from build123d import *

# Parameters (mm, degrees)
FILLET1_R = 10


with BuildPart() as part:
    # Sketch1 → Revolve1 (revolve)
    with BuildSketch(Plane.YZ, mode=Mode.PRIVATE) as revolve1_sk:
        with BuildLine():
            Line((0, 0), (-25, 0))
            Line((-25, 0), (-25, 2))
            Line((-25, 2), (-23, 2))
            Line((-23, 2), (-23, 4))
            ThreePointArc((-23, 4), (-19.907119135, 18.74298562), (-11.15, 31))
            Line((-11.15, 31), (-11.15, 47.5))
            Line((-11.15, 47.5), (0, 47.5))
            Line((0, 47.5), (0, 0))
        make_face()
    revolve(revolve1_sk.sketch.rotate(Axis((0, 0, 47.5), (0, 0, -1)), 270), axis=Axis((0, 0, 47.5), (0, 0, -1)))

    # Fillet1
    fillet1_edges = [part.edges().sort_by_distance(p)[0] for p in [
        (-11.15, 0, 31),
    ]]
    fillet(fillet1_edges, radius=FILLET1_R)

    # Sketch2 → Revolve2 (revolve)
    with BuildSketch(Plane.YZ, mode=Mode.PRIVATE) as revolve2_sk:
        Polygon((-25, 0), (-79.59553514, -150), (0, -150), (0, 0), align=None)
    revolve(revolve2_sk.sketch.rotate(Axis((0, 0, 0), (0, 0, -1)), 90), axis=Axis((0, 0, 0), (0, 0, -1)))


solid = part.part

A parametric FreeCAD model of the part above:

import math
import FreeCAD as App
import Part
import Sketcher
Q = App.Units.Quantity


def edges_at(feature, points):
    """Names of the edges that pass closest to the given points."""
    edges = feature.Shape.Edges
    near = lambda p: min(range(len(edges)), key=lambda i: edges[i].distToShape(Part.Vertex(*p))[0])
    return sorted({f"Edge{near(p) + 1}" for p in points})

doc = App.newDocument("Part")
body = doc.addObject("PartDesign::Body", "Body")

sketch1 = body.newObject("Sketcher::SketchObject", "Sketch")
sketch1.AttachmentSupport = (doc.getObject("YZ_Plane"), [""])
sketch1.MapMode = "FlatFace"
sketch1.addGeometry(Part.LineSegment(App.Vector(-25, 0, 0), App.Vector(0, 0, 0)), False)
sketch1.addGeometry(Part.LineSegment(App.Vector(0, 0, 0), App.Vector(0, 47.5, 0)), False)
sketch1.addGeometry(Part.LineSegment(App.Vector(0, 47.5, 0), App.Vector(-11.15, 47.5, 0)), False)
sketch1.addGeometry(Part.LineSegment(App.Vector(-11.15, 47.5, 0), App.Vector(-11.15, 31, 0)), False)
sketch1.addGeometry(Part.ArcOfCircle(Part.Circle(App.Vector(13.684494, 4, 0), App.Vector(0, 0, 1), 36.684494), math.radians(132.607727), math.radians(180)), False)
sketch1.addGeometry(Part.LineSegment(App.Vector(-23, 4, 0), App.Vector(-23, 2, 0)), False)
sketch1.addGeometry(Part.LineSegment(App.Vector(-23, 2, 0), App.Vector(-25, 2, 0)), False)
sketch1.addGeometry(Part.LineSegment(App.Vector(-25, 2, 0), App.Vector(-25, 0, 0)), False)
sketch1.addConstraint(Sketcher.Constraint("Coincident", 0, 2, 1, 1))
sketch1.addConstraint(Sketcher.Constraint("Coincident", 1, 2, 2, 1))
sketch1.addConstraint(Sketcher.Constraint("Coincident", 2, 2, 3, 1))
sketch1.addConstraint(Sketcher.Constraint("Coincident", 3, 2, 4, 1))
sketch1.addConstraint(Sketcher.Constraint("Tangent", 4, 2, 5, 1))
sketch1.addConstraint(Sketcher.Constraint("Coincident", 5, 2, 6, 1))
sketch1.addConstraint(Sketcher.Constraint("Coincident", 6, 2, 7, 1))
sketch1.addConstraint(Sketcher.Constraint("Coincident", 7, 2, 0, 1))
sketch1.addConstraint(Sketcher.Constraint("Horizontal", 0))
sketch1.addConstraint(Sketcher.Constraint("Vertical", 1))
sketch1.addConstraint(Sketcher.Constraint("Horizontal", 2))
sketch1.addConstraint(Sketcher.Constraint("Vertical", 3))
sketch1.addConstraint(Sketcher.Constraint("Vertical", 5))
sketch1.addConstraint(Sketcher.Constraint("Horizontal", 6))
sketch1.addConstraint(Sketcher.Constraint("Vertical", 7))
sketch1.addConstraint(Sketcher.Constraint("Coincident", 0, 2, -1, 1))
sketch1.addConstraint(Sketcher.Constraint("Equal", 6, 5))
sketch1.addConstraint(Sketcher.Constraint("Equal", 5, 7))
sketch1.addConstraint(Sketcher.Constraint("DistanceX", 0, 1, 0, 2, Q("25 mm")))
sketch1.addConstraint(Sketcher.Constraint("DistanceX", 6, 2, 6, 1, Q("2 mm")))
sketch1.addConstraint(Sketcher.Constraint("DistanceY", 1, 1, 1, 2, Q("47.5 mm")))
sketch1.addConstraint(Sketcher.Constraint("DistanceY", 3, 2, 3, 1, Q("16.5 mm")))
sketch1.addConstraint(Sketcher.Constraint("DistanceX", 2, 2, 2, 1, Q("11.15 mm")))
revolution = body.newObject("PartDesign::Revolution", "Revolution")
revolution.Profile = sketch1
revolution.ReferenceAxis = (sketch1, ["V_Axis"])
revolution.Angle = 360
doc.recompute()

fillet = body.newObject("PartDesign::Fillet", "Fillet")
fillet.Base = (revolution, edges_at(revolution, [(-11.15, 0, 31)]))
fillet.Radius = 10

sketch2 = body.newObject("Sketcher::SketchObject", "Sketch001")
sketch2.AttachmentSupport = (doc.getObject("YZ_Plane"), [""])
sketch2.MapMode = "FlatFace"
sketch2.addGeometry(Part.LineSegment(App.Vector(-25, 0, 0), App.Vector(-79.595535, -150, 0)), False)
sketch2.addGeometry(Part.LineSegment(App.Vector(-79.595535, -150, 0), App.Vector(0, -150, 0)), False)
sketch2.addGeometry(Part.LineSegment(App.Vector(0, -150, 0), App.Vector(0, 0, 0)), False)
sketch2.addGeometry(Part.LineSegment(App.Vector(0, 0, 0), App.Vector(-25, 0, 0)), False)
sketch2.addConstraint(Sketcher.Constraint("Coincident", 0, 2, 1, 1))
sketch2.addConstraint(Sketcher.Constraint("Coincident", 1, 2, 2, 1))
sketch2.addConstraint(Sketcher.Constraint("Coincident", 2, 2, 3, 1))
sketch2.addConstraint(Sketcher.Constraint("Coincident", 3, 2, 0, 1))
sketch2.addConstraint(Sketcher.Constraint("Horizontal", 1))
sketch2.addConstraint(Sketcher.Constraint("Vertical", 2))
sketch2.addConstraint(Sketcher.Constraint("Horizontal", 3))
sketch2.addConstraint(Sketcher.Constraint("Coincident", 2, 2, -1, 1))
sketch2.addConstraint(Sketcher.Constraint("DistanceX", 3, 2, 3, 1, Q("25 mm")))
sketch2.addConstraint(Sketcher.Constraint("DistanceY", 2, 1, 2, 2, Q("150 mm")))
sketch2.addConstraint(Sketcher.Constraint("Angle", 0, Q("-110 deg")))
revolution2 = body.newObject("PartDesign::Revolution", "Revolution001")
revolution2.Profile = sketch2
revolution2.ReferenceAxis = (sketch2, ["V_Axis"])
revolution2.Angle = 360

doc.recompute()
